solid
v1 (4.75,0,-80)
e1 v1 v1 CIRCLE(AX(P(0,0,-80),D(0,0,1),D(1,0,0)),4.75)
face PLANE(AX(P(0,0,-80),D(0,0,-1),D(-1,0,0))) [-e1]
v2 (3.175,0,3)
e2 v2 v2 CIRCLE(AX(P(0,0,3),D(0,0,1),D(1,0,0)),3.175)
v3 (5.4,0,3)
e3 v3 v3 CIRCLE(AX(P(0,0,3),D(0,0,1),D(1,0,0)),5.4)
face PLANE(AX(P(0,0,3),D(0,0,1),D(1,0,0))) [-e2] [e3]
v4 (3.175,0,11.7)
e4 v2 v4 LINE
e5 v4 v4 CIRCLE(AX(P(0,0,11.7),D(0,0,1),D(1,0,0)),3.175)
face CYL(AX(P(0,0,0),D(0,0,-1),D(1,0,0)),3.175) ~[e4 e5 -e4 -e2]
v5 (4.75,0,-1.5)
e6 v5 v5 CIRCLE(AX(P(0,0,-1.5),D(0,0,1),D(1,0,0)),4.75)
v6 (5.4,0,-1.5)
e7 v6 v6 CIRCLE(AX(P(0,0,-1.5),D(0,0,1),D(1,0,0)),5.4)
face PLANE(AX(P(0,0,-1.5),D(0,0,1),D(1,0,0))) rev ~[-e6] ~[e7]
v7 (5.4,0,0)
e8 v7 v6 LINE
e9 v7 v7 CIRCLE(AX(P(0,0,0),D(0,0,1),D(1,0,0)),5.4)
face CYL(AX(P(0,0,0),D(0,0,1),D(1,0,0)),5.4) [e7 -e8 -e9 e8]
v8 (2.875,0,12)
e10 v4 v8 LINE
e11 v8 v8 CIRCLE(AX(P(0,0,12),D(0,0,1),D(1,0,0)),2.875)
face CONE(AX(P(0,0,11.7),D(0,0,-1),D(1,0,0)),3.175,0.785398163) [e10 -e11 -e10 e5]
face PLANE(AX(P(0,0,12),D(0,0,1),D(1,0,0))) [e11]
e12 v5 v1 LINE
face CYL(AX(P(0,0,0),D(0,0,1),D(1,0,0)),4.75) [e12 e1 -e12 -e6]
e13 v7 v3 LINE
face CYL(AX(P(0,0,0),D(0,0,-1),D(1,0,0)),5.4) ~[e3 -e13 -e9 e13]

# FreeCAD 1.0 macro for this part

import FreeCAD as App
import Part
import Sketcher

V = App.Vector
Q = App.Units.Quantity


def edges_at(feature, points):
    """Names of the edges that pass closest to the given points."""
    edges = feature.Shape.Edges
    near = lambda p: min(range(len(edges)), key=lambda i: edges[i].distToShape(Part.Vertex(*p))[0])
    return sorted({f"Edge{near(p) + 1}" for p in points})

doc = App.newDocument("Part")
params = doc.addObject("Spreadsheet::Sheet", "Params")
for row, (alias, value) in enumerate([
    ("sketch1_diameter", "6.35 mm"),
    ("pad1_length", "12 mm"),
    ("sketch2_diameter", "9.5 mm"),
    ("sketch2_diameter2", "6.35 mm"),
    ("pad2_length", "80 mm"),
    ("sketch3_diameter", "10.8 mm"),
    ("sketch3_diameter2", "9.5 mm"),
    ("pad3_length", "1.5 mm"),
    ("sketch4_diameter", "6.35 mm"),
    ("pad4_length", "80 mm"),
    ("chamfer_size", "0.3 mm"),
    ("sketch5_diameter", "10.8 mm"),
    ("sketch5_diameter2", "6.35 mm"),
    ("pad5_length", "3 mm"),
], start=1):
    params.set(f"A{row}", alias)
    params.set(f"B{row}", "=" + value)
    params.setAlias(f"B{row}", alias)

body = doc.addObject("PartDesign::Body", "Body")
body.AllowCompound = True

# Sketch on XY plane
sketch1 = doc.addObject("Sketcher::SketchObject", "Sketch")
body.addObject(sketch1)
sketch1.AttachmentSupport = (doc.XY_Plane, [""])
sketch1.MapMode = "FlatFace"
sketch1.addGeometry(Part.Circle(V(0, 0, 0), V(0, 0, 1), 3.2), False)
sketch1.addConstraint(Sketcher.Constraint("Coincident", 0, 3, -1, 1))
sketch1.addConstraint(Sketcher.Constraint("Diameter", 0, Q("6.35 mm")))
sketch1.setExpression("Constraints[1]", "Params.sketch1_diameter")
pad1 = doc.addObject("PartDesign::Pad", "Pad")
body.addObject(pad1)
pad1.Profile = sketch1
pad1.setExpression("Length", "Params.pad1_length")

# Sketch on XY plane
sketch2 = doc.addObject("Sketcher::SketchObject", "Sketch001")
body.addObject(sketch2)
sketch2.AttachmentSupport = (doc.XY_Plane, [""])
sketch2.MapMode = "FlatFace"
sketch2.addGeometry(Part.Circle(V(0, 0, 0), V(0, 0, 1), 4.8), False)
sketch2.addGeometry(Part.Circle(V(0, 0, 0), V(0, 0, 1), 3.2), False)
sketch2.addConstraint(Sketcher.Constraint("Coincident", 0, 3, -1, 1))
sketch2.addConstraint(Sketcher.Constraint("Coincident", 1, 3, -1, 1))
sketch2.addConstraint(Sketcher.Constraint("Diameter", 0, Q("9.5 mm")))
sketch2.addConstraint(Sketcher.Constraint("Diameter", 1, Q("6.35 mm")))
sketch2.setExpression("Constraints[2]", "Params.sketch2_diameter")
sketch2.setExpression("Constraints[3]", "Params.sketch2_diameter2")
pad2 = doc.addObject("PartDesign::Pad", "Pad001")
body.addObject(pad2)
pad2.Profile = sketch2
pad2.setExpression("Length", "Params.pad2_length")
pad2.Reversed = True

# Sketch on XY plane
sketch3 = doc.addObject("Sketcher::SketchObject", "Sketch002")
body.addObject(sketch3)
sketch3.AttachmentSupport = (doc.XY_Plane, [""])
sketch3.MapMode = "FlatFace"
sketch3.addGeometry(Part.Circle(V(0, 0, 0), V(0, 0, 1), 5.4), False)
sketch3.addGeometry(Part.Circle(V(0, 0, 0), V(0, 0, 1), 4.8), False)
sketch3.addConstraint(Sketcher.Constraint("Coincident", 0, 3, -1, 1))
sketch3.addConstraint(Sketcher.Constraint("Coincident", 1, 3, -1, 1))
sketch3.addConstraint(Sketcher.Constraint("Diameter", 0, Q("10.8 mm")))
sketch3.addConstraint(Sketcher.Constraint("Diameter", 1, Q("9.5 mm")))
sketch3.setExpression("Constraints[2]", "Params.sketch3_diameter")
sketch3.setExpression("Constraints[3]", "Params.sketch3_diameter2")
pad3 = doc.addObject("PartDesign::Pad", "Pad002")
body.addObject(pad3)
pad3.Profile = sketch3
pad3.setExpression("Length", "Params.pad3_length")
pad3.Reversed = True

# Sketch on XY plane
sketch4 = doc.addObject("Sketcher::SketchObject", "Sketch003")
body.addObject(sketch4)
sketch4.AttachmentSupport = (doc.XY_Plane, [""])
sketch4.MapMode = "FlatFace"
sketch4.addGeometry(Part.Circle(V(0, 0, 0), V(0, 0, 1), 3.2), False)
sketch4.addConstraint(Sketcher.Constraint("Coincident", 0, 3, -1, 1))
sketch4.addConstraint(Sketcher.Constraint("Diameter", 0, Q("6.35 mm")))
sketch4.setExpression("Constraints[1]", "Params.sketch4_diameter")
pad4 = doc.addObject("PartDesign::Pad", "Pad003")
body.addObject(pad4)
pad4.Profile = sketch4
pad4.setExpression("Length", "Params.pad4_length")
pad4.Reversed = True
doc.recompute()

chamfer = doc.addObject("PartDesign::Chamfer", "Chamfer")
body.addObject(chamfer)
chamfer.Base = (pad4, edges_at(pad4, [(-3.175, 0, 12)]))
chamfer.setExpression("Size", "Params.chamfer_size")

# Sketch on XY plane
sketch5 = doc.addObject("Sketcher::SketchObject", "Sketch004")
body.addObject(sketch5)
sketch5.AttachmentSupport = (doc.XY_Plane, [""])
sketch5.MapMode = "FlatFace"
sketch5.addGeometry(Part.Circle(V(0, 0, 0), V(0, 0, 1), 5.4), False)
sketch5.addGeometry(Part.Circle(V(0, 0, 0), V(0, 0, 1), 3.2), False)
sketch5.addConstraint(Sketcher.Constraint("Coincident", 0, 3, -1, 1))
sketch5.addConstraint(Sketcher.Constraint("Coincident", 1, 3, -1, 1))
sketch5.addConstraint(Sketcher.Constraint("Diameter", 0, Q("10.8 mm")))
sketch5.addConstraint(Sketcher.Constraint("Diameter", 1, Q("6.35 mm")))
sketch5.setExpression("Constraints[2]", "Params.sketch5_diameter")
sketch5.setExpression("Constraints[3]", "Params.sketch5_diameter2")
pad5 = doc.addObject("PartDesign::Pad", "Pad004")
body.addObject(pad5)
pad5.Profile = sketch5
pad5.setExpression("Length", "Params.pad5_length")

doc.recompute()
